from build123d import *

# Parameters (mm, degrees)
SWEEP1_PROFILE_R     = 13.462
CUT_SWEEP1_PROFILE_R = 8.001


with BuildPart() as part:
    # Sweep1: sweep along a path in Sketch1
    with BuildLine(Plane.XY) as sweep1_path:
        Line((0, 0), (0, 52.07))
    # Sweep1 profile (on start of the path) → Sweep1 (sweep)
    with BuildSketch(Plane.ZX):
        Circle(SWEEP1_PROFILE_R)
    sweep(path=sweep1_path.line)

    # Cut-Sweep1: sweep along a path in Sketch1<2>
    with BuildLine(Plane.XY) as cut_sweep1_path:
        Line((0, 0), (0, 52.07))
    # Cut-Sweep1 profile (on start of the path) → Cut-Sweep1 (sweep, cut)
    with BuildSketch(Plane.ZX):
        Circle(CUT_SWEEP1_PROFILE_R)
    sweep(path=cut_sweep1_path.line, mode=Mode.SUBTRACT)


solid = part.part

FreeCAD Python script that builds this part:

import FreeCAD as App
import Part
import Sketcher

V = App.Vector
Q = App.Units.Quantity

doc = App.newDocument("Part")
params = doc.addObject("Spreadsheet::Sheet", "Params")
for row, (alias, value) in enumerate([
    ("sketch1_diameter", "1.06 in"),
    ("sketch2_height", "2.05 in"),
    ("sketch3_diameter", "0.63 in"),
    ("sketch4_height", "2.05 in"),
], start=1):
    params.set(f"A{row}", alias)
    params.set(f"B{row}", "=" + value)
    params.setAlias(f"B{row}", alias)

body = doc.addObject("PartDesign::Body", "Body")

# Sketch on XZ plane
sketch1 = body.newObject("Sketcher::SketchObject", "Sketch")
sketch1.AttachmentSupport = (doc.getObject("XZ_Plane"), [""])
sketch1.MapMode = "FlatFace"
sketch1.addGeometry(Part.Circle(V(0, 0, 0), V(0, 0, 1), 13), False)
sketch1.addConstraint([
    Sketcher.Constraint("Coincident", 0, 3, -1, 1),
    Sketcher.Constraint("Diameter", 0, Q("1.06 in")),
])
sketch1.setExpression("Constraints[1]", "Params.sketch1_diameter")

# Sketch on XY plane
sketch2 = body.newObject("Sketcher::SketchObject", "Sketch001")
sketch2.AttachmentSupport = (doc.getObject("XY_Plane"), [""])
sketch2.MapMode = "FlatFace"
sketch2.addGeometry(Part.LineSegment(V(0, 0, 0), V(0, 52, 0)), False)
sketch2.addConstraint([
    Sketcher.Constraint("Vertical", 0),
    Sketcher.Constraint("Coincident", 0, 1, -1, 1),
    Sketcher.Constraint("DistanceY", 0, 1, 0, 2, Q("2.05 in")),
])
sketch2.setExpression("Constraints[2]", "Params.sketch2_height")
doc.recompute()

additivepipe = body.newObject("PartDesign::AdditivePipe", "AdditivePipe")
additivepipe.Profile = sketch1
additivepipe.Spine = (sketch2, ["Edge1"])

# Sketch on XZ plane
sketch3 = body.newObject("Sketcher::SketchObject", "Sketch002")
sketch3.AttachmentSupport = (doc.getObject("XZ_Plane"), [""])
sketch3.MapMode = "FlatFace"
sketch3.addGeometry(Part.Circle(V(0, 0, 0), V(0, 0, 1), 8), False)
sketch3.addConstraint([
    Sketcher.Constraint("Coincident", 0, 3, -1, 1),
    Sketcher.Constraint("Diameter", 0, Q("0.63 in")),
])
sketch3.setExpression("Constraints[1]", "Params.sketch3_diameter")

# Sketch on XY plane
sketch4 = body.newObject("Sketcher::SketchObject", "Sketch003")
sketch4.AttachmentSupport = (doc.getObject("XY_Plane"), [""])
sketch4.MapMode = "FlatFace"
sketch4.addGeometry(Part.LineSegment(V(0, 0, 0), V(0, 52, 0)), False)
sketch4.addConstraint([
    Sketcher.Constraint("Vertical", 0),
    Sketcher.Constraint("Coincident", 0, 1, -1, 1),
    Sketcher.Constraint("DistanceY", 0, 1, 0, 2, Q("2.05 in")),
])
sketch4.setExpression("Constraints[2]", "Params.sketch4_height")
doc.recompute()

subtractivepipe = body.newObject("PartDesign::SubtractivePipe", "SubtractivePipe")
subtractivepipe.Profile = sketch3
subtractivepipe.Spine = (sketch4, ["Edge1"])

doc.recompute()
